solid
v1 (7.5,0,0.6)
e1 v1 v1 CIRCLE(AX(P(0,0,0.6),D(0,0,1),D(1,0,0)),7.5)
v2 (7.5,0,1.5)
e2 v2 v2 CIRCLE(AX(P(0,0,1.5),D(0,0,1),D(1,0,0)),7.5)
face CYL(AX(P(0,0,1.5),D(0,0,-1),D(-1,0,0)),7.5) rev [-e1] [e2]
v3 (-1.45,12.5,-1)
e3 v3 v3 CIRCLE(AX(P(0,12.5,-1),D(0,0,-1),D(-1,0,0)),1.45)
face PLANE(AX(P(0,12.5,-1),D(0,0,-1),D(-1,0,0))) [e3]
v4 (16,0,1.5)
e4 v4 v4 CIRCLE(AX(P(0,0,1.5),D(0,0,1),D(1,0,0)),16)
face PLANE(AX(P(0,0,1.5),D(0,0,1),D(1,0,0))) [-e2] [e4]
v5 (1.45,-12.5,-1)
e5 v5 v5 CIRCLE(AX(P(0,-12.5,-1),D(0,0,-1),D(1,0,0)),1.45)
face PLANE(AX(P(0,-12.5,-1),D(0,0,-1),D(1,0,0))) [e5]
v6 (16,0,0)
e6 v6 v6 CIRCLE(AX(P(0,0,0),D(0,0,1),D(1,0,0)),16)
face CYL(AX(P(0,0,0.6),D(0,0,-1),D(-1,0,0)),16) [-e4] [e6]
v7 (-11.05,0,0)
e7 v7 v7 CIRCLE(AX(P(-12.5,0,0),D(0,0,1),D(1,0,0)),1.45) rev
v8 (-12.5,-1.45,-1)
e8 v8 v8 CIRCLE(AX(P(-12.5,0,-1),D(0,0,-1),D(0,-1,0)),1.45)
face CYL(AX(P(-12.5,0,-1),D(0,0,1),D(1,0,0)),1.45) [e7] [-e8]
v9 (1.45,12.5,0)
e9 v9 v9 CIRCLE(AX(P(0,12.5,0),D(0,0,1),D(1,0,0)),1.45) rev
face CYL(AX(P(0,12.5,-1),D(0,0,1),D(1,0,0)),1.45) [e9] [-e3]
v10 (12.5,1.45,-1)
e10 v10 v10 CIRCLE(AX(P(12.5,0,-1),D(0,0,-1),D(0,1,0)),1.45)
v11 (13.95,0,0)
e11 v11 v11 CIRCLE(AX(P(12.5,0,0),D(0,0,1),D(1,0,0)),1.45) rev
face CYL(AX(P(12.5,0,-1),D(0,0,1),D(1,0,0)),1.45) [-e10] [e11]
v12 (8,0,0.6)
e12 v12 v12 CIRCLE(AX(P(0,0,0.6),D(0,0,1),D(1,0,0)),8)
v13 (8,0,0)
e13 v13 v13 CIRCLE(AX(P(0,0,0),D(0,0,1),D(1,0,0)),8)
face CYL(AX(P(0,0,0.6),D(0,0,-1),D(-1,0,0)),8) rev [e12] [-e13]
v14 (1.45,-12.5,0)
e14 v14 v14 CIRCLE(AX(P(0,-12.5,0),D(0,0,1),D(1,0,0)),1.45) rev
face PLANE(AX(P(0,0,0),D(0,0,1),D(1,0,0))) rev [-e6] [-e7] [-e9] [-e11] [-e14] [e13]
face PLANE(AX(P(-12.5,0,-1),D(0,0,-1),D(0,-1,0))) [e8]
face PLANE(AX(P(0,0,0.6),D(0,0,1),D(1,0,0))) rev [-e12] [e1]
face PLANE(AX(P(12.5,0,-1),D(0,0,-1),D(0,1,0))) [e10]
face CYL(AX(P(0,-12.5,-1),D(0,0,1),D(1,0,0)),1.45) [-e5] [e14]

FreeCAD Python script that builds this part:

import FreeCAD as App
import Part
import Sketcher

V = App.Vector
Q = App.Units.Quantity

doc = App.newDocument("Part")
body = doc.addObject("PartDesign::Body", "Body")

# Sketch on XY plane
sketch1 = body.newObject("Sketcher::SketchObject", "Sketch")
sketch1.AttachmentSupport = (doc.getObject("XY_Plane"), [""])
sketch1.MapMode = "FlatFace"
sketch1.addGeometry([
    Part.Circle(V(0, 0, 0), V(0, 0, 1), 16),
    Part.Circle(V(0, 0, 0), V(0, 0, 1), 8),
], False)
sketch1.addConstraint([
    Sketcher.Constraint("Coincident", 0, 3, -1, 1),
    Sketcher.Constraint("Coincident", 1, 3, -1, 1),
    Sketcher.Constraint("Diameter", 0, Q("32 mm")),
    Sketcher.Constraint("Diameter", 1, Q("16 mm")),
])
pad1 = body.newObject("PartDesign::Pad", "Pad")
pad1.Profile = sketch1
pad1.Length = 0.6

# Sketch on XY plane
sketch2 = body.newObject("Sketcher::SketchObject", "Sketch001")
sketch2.AttachmentSupport = (doc.getObject("XY_Plane"), [""])
sketch2.MapMode = "FlatFace"
sketch2.AttachmentOffset = App.Placement(V(0, 0, 0.6), App.Rotation())
sketch2.addGeometry([
    Part.Circle(V(0, 0, 0), V(0, 0, 1), 16),
    Part.Circle(V(0, 0, 0), V(0, 0, 1), 8),
], False)
sketch2.addConstraint([
    Sketcher.Constraint("Coincident", 0, 3, -1, 1),
    Sketcher.Constraint("Coincident", 1, 3, -1, 1),
    Sketcher.Constraint("Diameter", 0, Q("32 mm")),
    Sketcher.Constraint("Diameter", 1, Q("15 mm")),
])
pad2 = body.newObject("PartDesign::Pad", "Pad001")
pad2.Profile = sketch2
pad2.Length = 0.9

# Sketch on XY plane
sketch3 = body.newObject("Sketcher::SketchObject", "Sketch002")
sketch3.AttachmentSupport = (doc.getObject("XY_Plane"), [""])
sketch3.MapMode = "FlatFace"
sketch3.addGeometry(Part.Circle(V(0, 12.5, 0), V(0, 0, 1), 1.4), False)
sketch3.addConstraint([
    Sketcher.Constraint("PointOnObject", 0, 3, -2),
    Sketcher.Constraint("Diameter", 0, Q("2.9 mm")),
    Sketcher.Constraint("DistanceY", -1, 1, 0, 3, Q("12.5 mm")),
])
pad3 = body.newObject("PartDesign::Pad", "Pad002")
pad3.Profile = sketch3
pad3.Length = 1
pad3.Reversed = True
doc.recompute()

polarpattern = body.newObject("PartDesign::PolarPattern", "PolarPattern")
polarpattern.Originals = [pad3]
polarpattern.Axis = (doc.getObject("Z_Axis"), [""])
polarpattern.Angle = 360
polarpattern.Occurrences = 4
body.Tip = polarpattern

doc.recompute()
